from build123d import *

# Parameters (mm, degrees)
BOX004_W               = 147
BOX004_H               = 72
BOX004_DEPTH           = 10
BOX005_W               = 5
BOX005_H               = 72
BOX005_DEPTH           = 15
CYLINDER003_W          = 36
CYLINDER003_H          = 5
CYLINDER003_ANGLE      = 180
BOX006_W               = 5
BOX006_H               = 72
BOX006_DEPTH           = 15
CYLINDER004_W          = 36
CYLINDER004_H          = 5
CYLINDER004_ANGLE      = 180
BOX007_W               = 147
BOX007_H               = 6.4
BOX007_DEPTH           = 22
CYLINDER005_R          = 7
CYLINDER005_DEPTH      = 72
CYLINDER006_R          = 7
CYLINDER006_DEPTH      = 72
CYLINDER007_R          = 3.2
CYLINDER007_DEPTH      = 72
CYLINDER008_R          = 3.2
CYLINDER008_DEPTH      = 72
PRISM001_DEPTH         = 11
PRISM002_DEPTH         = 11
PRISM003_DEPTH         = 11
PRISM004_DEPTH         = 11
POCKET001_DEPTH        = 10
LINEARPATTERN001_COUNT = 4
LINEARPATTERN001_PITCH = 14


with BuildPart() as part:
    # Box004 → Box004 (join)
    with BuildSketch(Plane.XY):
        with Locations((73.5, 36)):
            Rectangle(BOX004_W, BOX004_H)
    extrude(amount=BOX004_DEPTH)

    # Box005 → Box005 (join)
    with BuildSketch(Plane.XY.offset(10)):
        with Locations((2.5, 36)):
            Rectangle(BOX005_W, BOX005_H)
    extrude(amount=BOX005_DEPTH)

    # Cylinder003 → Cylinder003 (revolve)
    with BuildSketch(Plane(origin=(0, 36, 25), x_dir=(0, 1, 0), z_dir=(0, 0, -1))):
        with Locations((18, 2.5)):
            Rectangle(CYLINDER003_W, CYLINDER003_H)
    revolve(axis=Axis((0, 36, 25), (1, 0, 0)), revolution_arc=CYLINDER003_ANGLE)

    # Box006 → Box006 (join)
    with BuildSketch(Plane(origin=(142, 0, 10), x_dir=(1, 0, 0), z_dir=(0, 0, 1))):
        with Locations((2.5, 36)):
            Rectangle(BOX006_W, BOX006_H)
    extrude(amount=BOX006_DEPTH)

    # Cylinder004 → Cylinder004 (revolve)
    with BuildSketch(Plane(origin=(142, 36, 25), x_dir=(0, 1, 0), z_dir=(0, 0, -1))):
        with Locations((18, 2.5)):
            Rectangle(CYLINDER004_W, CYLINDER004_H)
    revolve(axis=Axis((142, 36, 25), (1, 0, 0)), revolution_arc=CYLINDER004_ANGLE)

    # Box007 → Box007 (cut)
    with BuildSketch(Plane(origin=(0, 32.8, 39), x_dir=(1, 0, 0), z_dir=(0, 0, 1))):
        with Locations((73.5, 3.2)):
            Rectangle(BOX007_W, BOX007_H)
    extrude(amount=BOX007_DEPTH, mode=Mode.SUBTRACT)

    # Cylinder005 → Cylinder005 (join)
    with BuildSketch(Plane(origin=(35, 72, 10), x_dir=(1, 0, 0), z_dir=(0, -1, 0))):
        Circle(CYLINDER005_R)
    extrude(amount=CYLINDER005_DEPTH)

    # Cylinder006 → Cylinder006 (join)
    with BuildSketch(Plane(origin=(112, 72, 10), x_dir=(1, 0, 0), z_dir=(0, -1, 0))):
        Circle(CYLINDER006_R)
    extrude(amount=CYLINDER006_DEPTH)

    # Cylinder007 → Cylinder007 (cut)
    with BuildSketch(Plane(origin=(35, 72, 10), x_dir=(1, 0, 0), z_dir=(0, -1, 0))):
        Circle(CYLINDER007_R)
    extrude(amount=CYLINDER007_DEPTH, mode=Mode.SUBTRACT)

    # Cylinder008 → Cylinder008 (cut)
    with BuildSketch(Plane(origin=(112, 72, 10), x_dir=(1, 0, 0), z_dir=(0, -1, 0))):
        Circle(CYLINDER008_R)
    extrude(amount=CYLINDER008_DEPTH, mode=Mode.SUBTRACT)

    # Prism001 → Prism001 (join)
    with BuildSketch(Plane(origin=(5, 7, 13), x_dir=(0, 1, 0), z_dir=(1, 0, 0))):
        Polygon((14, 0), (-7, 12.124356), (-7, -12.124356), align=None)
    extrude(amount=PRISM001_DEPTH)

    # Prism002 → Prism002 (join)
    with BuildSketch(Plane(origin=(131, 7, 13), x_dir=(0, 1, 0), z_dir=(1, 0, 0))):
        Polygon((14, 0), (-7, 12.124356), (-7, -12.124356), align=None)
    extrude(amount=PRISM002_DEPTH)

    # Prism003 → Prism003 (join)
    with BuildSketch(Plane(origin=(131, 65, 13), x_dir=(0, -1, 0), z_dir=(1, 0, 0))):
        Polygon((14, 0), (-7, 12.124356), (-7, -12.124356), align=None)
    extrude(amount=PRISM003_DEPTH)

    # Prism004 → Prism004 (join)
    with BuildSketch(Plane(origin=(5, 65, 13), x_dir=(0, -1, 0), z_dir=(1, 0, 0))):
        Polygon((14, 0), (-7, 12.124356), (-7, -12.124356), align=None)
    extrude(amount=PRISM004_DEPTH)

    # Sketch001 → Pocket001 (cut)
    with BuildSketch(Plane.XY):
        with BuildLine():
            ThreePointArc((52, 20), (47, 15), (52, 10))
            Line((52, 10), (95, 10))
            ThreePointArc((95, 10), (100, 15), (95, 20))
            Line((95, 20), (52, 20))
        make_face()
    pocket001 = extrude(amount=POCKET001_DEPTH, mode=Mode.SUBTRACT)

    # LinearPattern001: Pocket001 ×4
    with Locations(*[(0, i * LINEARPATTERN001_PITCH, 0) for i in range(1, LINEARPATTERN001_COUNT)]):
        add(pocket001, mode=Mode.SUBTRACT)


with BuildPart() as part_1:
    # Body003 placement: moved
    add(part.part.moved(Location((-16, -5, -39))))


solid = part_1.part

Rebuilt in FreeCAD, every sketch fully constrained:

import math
import FreeCAD as App
import Part
import Sketcher

V = App.Vector
Q = App.Units.Quantity

doc = App.newDocument("Part")
body = doc.addObject("PartDesign::Body", "Body")

sketch1 = body.newObject("Sketcher::SketchObject", "Sketch")
sketch1.AttachmentSupport = (doc.getObject("XY_Plane"), [""])
sketch1.MapMode = "FlatFace"
sketch1.addGeometry([
    Part.LineSegment(V(0, 72, 0), V(0, 0, 0)),
    Part.LineSegment(V(0, 0, 0), V(147, 0, 0)),
    Part.LineSegment(V(147, 0, 0), V(147, 72, 0)),
    Part.LineSegment(V(147, 72, 0), V(0, 72, 0)),
], False)
sketch1.addConstraint([
    Sketcher.Constraint("Coincident", 0, 2, 1, 1),
    Sketcher.Constraint("Coincident", 1, 2, 2, 1),
    Sketcher.Constraint("Coincident", 2, 2, 3, 1),
    Sketcher.Constraint("Coincident", 3, 2, 0, 1),
    Sketcher.Constraint("Vertical", 0),
    Sketcher.Constraint("Horizontal", 1),
    Sketcher.Constraint("Vertical", 2),
    Sketcher.Constraint("Horizontal", 3),
    Sketcher.Constraint("Coincident", 0, 2, -1, 1),
    Sketcher.Constraint("DistanceX", 1, 1, 1, 2, Q("147 mm")),
    Sketcher.Constraint("DistanceY", 0, 2, 0, 1, Q("72 mm")),
])
pad1 = body.newObject("PartDesign::Pad", "Pad")
pad1.Profile = sketch1
pad1.Length = 10

sketch2 = body.newObject("Sketcher::SketchObject", "Sketch001")
sketch2.AttachmentSupport = (doc.getObject("XY_Plane"), [""])
sketch2.MapMode = "FlatFace"
sketch2.AttachmentOffset = App.Placement(V(0, 0, 10), App.Rotation())
sketch2.addGeometry([
    Part.LineSegment(V(0, 72, 0), V(0, 0, 0)),
    Part.LineSegment(V(0, 0, 0), V(5, 0, 0)),
    Part.LineSegment(V(5, 0, 0), V(5, 72, 0)),
    Part.LineSegment(V(5, 72, 0), V(0, 72, 0)),
], False)
sketch2.addConstraint([
    Sketcher.Constraint("Coincident", 0, 2, 1, 1),
    Sketcher.Constraint("Coincident", 1, 2, 2, 1),
    Sketcher.Constraint("Coincident", 2, 2, 3, 1),
    Sketcher.Constraint("Coincident", 3, 2, 0, 1),
    Sketcher.Constraint("Vertical", 0),
    Sketcher.Constraint("Horizontal", 1),
    Sketcher.Constraint("Vertical", 2),
    Sketcher.Constraint("Horizontal", 3),
    Sketcher.Constraint("Coincident", 0, 2, -1, 1),
    Sketcher.Constraint("DistanceX", 1, 1, 1, 2, Q("5 mm")),
    Sketcher.Constraint("DistanceY", 0, 2, 0, 1, Q("72 mm")),
])
pad2 = body.newObject("PartDesign::Pad", "Pad001")
pad2.Profile = sketch2
pad2.Length = 15

sketch3 = body.newObject("Sketcher::SketchObject", "Sketch002")
sketch3.AttachmentSupport = (doc.getObject("XY_Plane"), [""])
sketch3.MapMode = "FlatFace"
sketch3.AttachmentOffset = App.Placement(V(0, 0, 25), App.Rotation())
sketch3.addGeometry([
    Part.LineSegment(V(5, 36, 0), V(0, 36, 0)),
    Part.LineSegment(V(0, 36, 0), V(0, 72, 0)),
    Part.LineSegment(V(0, 72, 0), V(5, 72, 0)),
    Part.LineSegment(V(5, 72, 0), V(5, 36, 0)),
], False)
sketch3.addGeometry(Part.LineSegment(V(0, 36, 0), V(5, 36, 0)), True)
sketch3.addConstraint([
    Sketcher.Constraint("Coincident", 0, 2, 1, 1),
    Sketcher.Constraint("Coincident", 1, 2, 2, 1),
    Sketcher.Constraint("Coincident", 2, 2, 3, 1),
    Sketcher.Constraint("Coincident", 3, 2, 0, 1),
    Sketcher.Constraint("Horizontal", 0),
    Sketcher.Constraint("Vertical", 1),
    Sketcher.Constraint("Horizontal", 2),
    Sketcher.Constraint("Vertical", 3),
    Sketcher.Constraint("Horizontal", 4),
    Sketcher.Constraint("Coincident", 4, 1, 0, 2),
    Sketcher.Constraint("PointOnObject", 0, 2, -2),
    Sketcher.Constraint("Vertical", 2, 2, 4, 2),
    Sketcher.Constraint("DistanceX", 0, 2, 0, 1, Q("5 mm")),
    Sketcher.Constraint("DistanceY", 1, 1, 1, 2, Q("36 mm")),
    Sketcher.Constraint("DistanceY", -1, 1, 0, 2, Q("36 mm")),
])
revolution = body.newObject("PartDesign::Revolution", "Revolution")
revolution.Profile = sketch3
revolution.ReferenceAxis = (sketch3, ["Axis0"])
revolution.Angle = 180

sketch4 = body.newObject("Sketcher::SketchObject", "Sketch003")
sketch4.AttachmentSupport = (doc.getObject("XY_Plane"), [""])
sketch4.MapMode = "FlatFace"
sketch4.AttachmentOffset = App.Placement(V(0, 0, 10), App.Rotation())
sketch4.addGeometry([
    Part.LineSegment(V(142, 72, 0), V(142, 0, 0)),
    Part.LineSegment(V(142, 0, 0), V(147, 0, 0)),
    Part.LineSegment(V(147, 0, 0), V(147, 72, 0)),
    Part.LineSegment(V(147, 72, 0), V(142, 72, 0)),
], False)
sketch4.addConstraint([
    Sketcher.Constraint("Coincident", 0, 2, 1, 1),
    Sketcher.Constraint("Coincident", 1, 2, 2, 1),
    Sketcher.Constraint("Coincident", 2, 2, 3, 1),
    Sketcher.Constraint("Coincident", 3, 2, 0, 1),
    Sketcher.Constraint("Vertical", 0),
    Sketcher.Constraint("Horizontal", 1),
    Sketcher.Constraint("Vertical", 2),
    Sketcher.Constraint("Horizontal", 3),
    Sketcher.Constraint("PointOnObject", 0, 2, -1),
    Sketcher.Constraint("DistanceX", 1, 1, 1, 2, Q("5 mm")),
    Sketcher.Constraint("DistanceY", 0, 2, 0, 1, Q("72 mm")),
    Sketcher.Constraint("DistanceX", -1, 1, 0, 2, Q("142 mm")),
])
pad3 = body.newObject("PartDesign::Pad", "Pad002")
pad3.Profile = sketch4
pad3.Length = 15

sketch5 = body.newObject("Sketcher::SketchObject", "Sketch004")
sketch5.AttachmentSupport = (doc.getObject("XY_Plane"), [""])
sketch5.MapMode = "FlatFace"
sketch5.AttachmentOffset = App.Placement(V(0, 0, 25), App.Rotation())
sketch5.addGeometry([
    Part.LineSegment(V(147, 36, 0), V(142, 36, 0)),
    Part.LineSegment(V(142, 36, 0), V(142, 72, 0)),
    Part.LineSegment(V(142, 72, 0), V(147, 72, 0)),
    Part.LineSegment(V(147, 72, 0), V(147, 36, 0)),
], False)
sketch5.addGeometry(Part.LineSegment(V(142, 36, 0), V(147, 36, 0)), True)
sketch5.addConstraint([
    Sketcher.Constraint("Coincident", 0, 2, 1, 1),
    Sketcher.Constraint("Coincident", 1, 2, 2, 1),
    Sketcher.Constraint("Coincident", 2, 2, 3, 1),
    Sketcher.Constraint("Coincident", 3, 2, 0, 1),
    Sketcher.Constraint("Horizontal", 0),
    Sketcher.Constraint("Vertical", 1),
    Sketcher.Constraint("Horizontal", 2),
    Sketcher.Constraint("Vertical", 3),
    Sketcher.Constraint("Horizontal", 4),
    Sketcher.Constraint("Coincident", 4, 1, 0, 2),
    Sketcher.Constraint("Vertical", 2, 2, 4, 2),
    Sketcher.Constraint("DistanceX", 0, 2, 0, 1, Q("5 mm")),
    Sketcher.Constraint("DistanceY", 1, 1, 1, 2, Q("36 mm")),
    Sketcher.Constraint("DistanceX", -1, 1, 0, 2, Q("142 mm")),
    Sketcher.Constraint("DistanceY", -1, 1, 0, 2, Q("36 mm")),
])
revolution2 = body.newObject("PartDesign::Revolution", "Revolution001")
revolution2.Profile = sketch5
revolution2.ReferenceAxis = (sketch5, ["Axis0"])
revolution2.Angle = 180

sketch6 = body.newObject("Sketcher::SketchObject", "Sketch005")
sketch6.AttachmentSupport = (doc.getObject("XY_Plane"), [""])
sketch6.MapMode = "FlatFace"
sketch6.AttachmentOffset = App.Placement(V(0, 0, 39), App.Rotation())
sketch6.addGeometry([
    Part.LineSegment(V(0, 39, 0), V(0, 33, 0)),
    Part.LineSegment(V(0, 33, 0), V(147, 33, 0)),
    Part.LineSegment(V(147, 33, 0), V(147, 39, 0)),
    Part.LineSegment(V(147, 39, 0), V(0, 39, 0)),
], False)
sketch6.addConstraint([
    Sketcher.Constraint("Coincident", 0, 2, 1, 1),
    Sketcher.Constraint("Coincident", 1, 2, 2, 1),
    Sketcher.Constraint("Coincident", 2, 2, 3, 1),
    Sketcher.Constraint("Coincident", 3, 2, 0, 1),
    Sketcher.Constraint("Vertical", 0),
    Sketcher.Constraint("Horizontal", 1),
    Sketcher.Constraint("Vertical", 2),
    Sketcher.Constraint("Horizontal", 3),
    Sketcher.Constraint("PointOnObject", 0, 2, -2),
    Sketcher.Constraint("DistanceX", 1, 1, 1, 2, Q("147 mm")),
    Sketcher.Constraint("DistanceY", 0, 2, 0, 1, Q("6.4 mm")),
    Sketcher.Constraint("DistanceY", -1, 1, 0, 2, Q("32.8 mm")),
])
pocket1 = body.newObject("PartDesign::Pocket", "Pocket")
pocket1.Profile = sketch6
pocket1.Length = 22
pocket1.Reversed = True

sketch7 = body.newObject("Sketcher::SketchObject", "Sketch006")
sketch7.AttachmentSupport = (doc.getObject("XZ_Plane"), [""])
sketch7.MapMode = "FlatFace"
sketch7.AttachmentOffset = App.Placement(V(0, 0, -72), App.Rotation())
sketch7.addGeometry(Part.Circle(V(35, 10, 0), V(0, 0, 1), 7), False)
sketch7.addConstraint([
    Sketcher.Constraint("Diameter", 0, Q("14 mm")),
    Sketcher.Constraint("DistanceX", -1, 1, 0, 3, Q("35 mm")),
    Sketcher.Constraint("DistanceY", -1, 1, 0, 3, Q("10 mm")),
])
pad4 = body.newObject("PartDesign::Pad", "Pad003")
pad4.Profile = sketch7
pad4.Length = 72

sketch8 = body.newObject("Sketcher::SketchObject", "Sketch007")
sketch8.AttachmentSupport = (doc.getObject("XZ_Plane"), [""])
sketch8.MapMode = "FlatFace"
sketch8.AttachmentOffset = App.Placement(V(0, 0, -72), App.Rotation())
sketch8.addGeometry(Part.Circle(V(112, 10, 0), V(0, 0, 1), 7), False)
sketch8.addConstraint([
    Sketcher.Constraint("Diameter", 0, Q("14 mm")),
    Sketcher.Constraint("DistanceX", -1, 1, 0, 3, Q("112 mm")),
    Sketcher.Constraint("DistanceY", -1, 1, 0, 3, Q("10 mm")),
])
pad5 = body.newObject("PartDesign::Pad", "Pad004")
pad5.Profile = sketch8
pad5.Length = 72

sketch9 = body.newObject("Sketcher::SketchObject", "Sketch008")
sketch9.AttachmentSupport = (doc.getObject("XZ_Plane"), [""])
sketch9.MapMode = "FlatFace"
sketch9.AttachmentOffset = App.Placement(V(0, 0, -72), App.Rotation())
sketch9.addGeometry(Part.Circle(V(35, 10, 0), V(0, 0, 1), 3.2), False)
sketch9.addConstraint([
    Sketcher.Constraint("Diameter", 0, Q("6.4 mm")),
    Sketcher.Constraint("DistanceX", -1, 1, 0, 3, Q("35 mm")),
    Sketcher.Constraint("DistanceY", -1, 1, 0, 3, Q("10 mm")),
])
pocket2 = body.newObject("PartDesign::Pocket", "Pocket001")
pocket2.Profile = sketch9
pocket2.Length = 72
pocket2.Reversed = True

sketch10 = body.newObject("Sketcher::SketchObject", "Sketch009")
sketch10.AttachmentSupport = (doc.getObject("XZ_Plane"), [""])
sketch10.MapMode = "FlatFace"
sketch10.AttachmentOffset = App.Placement(V(0, 0, -72), App.Rotation())
sketch10.addGeometry(Part.Circle(V(112, 10, 0), V(0, 0, 1), 3.2), False)
sketch10.addConstraint([
    Sketcher.Constraint("Diameter", 0, Q("6.4 mm")),
    Sketcher.Constraint("DistanceX", -1, 1, 0, 3, Q("112 mm")),
    Sketcher.Constraint("DistanceY", -1, 1, 0, 3, Q("10 mm")),
])
pocket3 = body.newObject("PartDesign::Pocket", "Pocket002")
pocket3.Profile = sketch10
pocket3.Length = 72
pocket3.Reversed = True

sketch11 = body.newObject("Sketcher::SketchObject", "Sketch010")
sketch11.AttachmentSupport = (doc.getObject("YZ_Plane"), [""])
sketch11.MapMode = "FlatFace"
sketch11.AttachmentOffset = App.Placement(V(0, 0, 5), App.Rotation())
sketch11.addGeometry([
    Part.LineSegment(V(21, 13, 0), V(0, 25, 0)),
    Part.LineSegment(V(0, 25, 0), V(0, 1, 0)),
    Part.LineSegment(V(0, 1, 0), V(21, 13, 0)),
], False)
sketch11.addConstraint([
    Sketcher.Constraint("Coincident", 0, 2, 1, 1),
    Sketcher.Constraint("Coincident", 1, 2, 2, 1),
    Sketcher.Constraint("Coincident", 2, 2, 0, 1),
    Sketcher.Constraint("Vertical", 1),
    Sketcher.Constraint("PointOnObject", 0, 2, -2),
    Sketcher.Constraint("Equal", 0, 2),
    Sketcher.Constraint("Angle", 0, Q("149.999999 deg")),
    Sketcher.Constraint("DistanceX", -1, 1, 2, 2, Q("21 mm")),
    Sketcher.Constraint("DistanceY", -1, 1, 2, 2, Q("13 mm")),
])
pad6 = body.newObject("PartDesign::Pad", "Pad005")
pad6.Profile = sketch11
pad6.Length = 11

sketch12 = body.newObject("Sketcher::SketchObject", "Sketch011")
sketch12.AttachmentSupport = (doc.getObject("YZ_Plane"), [""])
sketch12.MapMode = "FlatFace"
sketch12.AttachmentOffset = App.Placement(V(0, 0, 131), App.Rotation())
sketch12.addGeometry([
    Part.LineSegment(V(21, 13, 0), V(0, 25, 0)),
    Part.LineSegment(V(0, 25, 0), V(0, 1, 0)),
    Part.LineSegment(V(0, 1, 0), V(21, 13, 0)),
], False)
sketch12.addConstraint([
    Sketcher.Constraint("Coincident", 0, 2, 1, 1),
    Sketcher.Constraint("Coincident", 1, 2, 2, 1),
    Sketcher.Constraint("Coincident", 2, 2, 0, 1),
    Sketcher.Constraint("Vertical", 1),
    Sketcher.Constraint("PointOnObject", 0, 2, -2),
    Sketcher.Constraint("Equal", 0, 2),
    Sketcher.Constraint("Angle", 0, Q("149.999999 deg")),
    Sketcher.Constraint("DistanceX", -1, 1, 2, 2, Q("21 mm")),
    Sketcher.Constraint("DistanceY", -1, 1, 2, 2, Q("13 mm")),
])
pad7 = body.newObject("PartDesign::Pad", "Pad006")
pad7.Profile = sketch12
pad7.Length = 11

sketch13 = body.newObject("Sketcher::SketchObject", "Sketch012")
sketch13.AttachmentSupport = (doc.getObject("YZ_Plane"), [""])
sketch13.MapMode = "FlatFace"
sketch13.AttachmentOffset = App.Placement(V(0, 0, 131), App.Rotation())
sketch13.addGeometry([
    Part.LineSegment(V(51, 13, 0), V(72, 1, 0)),
    Part.LineSegment(V(72, 1, 0), V(72, 25, 0)),
    Part.LineSegment(V(72, 25, 0), V(51, 13, 0)),
], False)
sketch13.addConstraint([
    Sketcher.Constraint("Coincident", 0, 2, 1, 1),
    Sketcher.Constraint("Coincident", 1, 2, 2, 1),
    Sketcher.Constraint("Coincident", 2, 2, 0, 1),
    Sketcher.Constraint("Vertical", 1),
    Sketcher.Constraint("Equal", 0, 2),
    Sketcher.Constraint("Angle", 0, Q("-30.000001 deg")),
    Sketcher.Constraint("DistanceX", -1, 1, 0, 2, Q("72 mm")),
    Sketcher.Constraint("DistanceX", -1, 1, 2, 2, Q("51 mm")),
    Sketcher.Constraint("DistanceY", -1, 1, 2, 2, Q("13 mm")),
])
pad8 = body.newObject("PartDesign::Pad", "Pad007")
pad8.Profile = sketch13
pad8.Length = 11

sketch14 = body.newObject("Sketcher::SketchObject", "Sketch013")
sketch14.AttachmentSupport = (doc.getObject("YZ_Plane"), [""])
sketch14.MapMode = "FlatFace"
sketch14.AttachmentOffset = App.Placement(V(0, 0, 5), App.Rotation())
sketch14.addGeometry([
    Part.LineSegment(V(51, 13, 0), V(72, 1, 0)),
    Part.LineSegment(V(72, 1, 0), V(72, 25, 0)),
    Part.LineSegment(V(72, 25, 0), V(51, 13, 0)),
], False)
sketch14.addConstraint([
    Sketcher.Constraint("Coincident", 0, 2, 1, 1),
    Sketcher.Constraint("Coincident", 1, 2, 2, 1),
    Sketcher.Constraint("Coincident", 2, 2, 0, 1),
    Sketcher.Constraint("Vertical", 1),
    Sketcher.Constraint("Equal", 0, 2),
    Sketcher.Constraint("Angle", 0, Q("-30.000001 deg")),
    Sketcher.Constraint("DistanceX", -1, 1, 0, 2, Q("72 mm")),
    Sketcher.Constraint("DistanceX", -1, 1, 2, 2, Q("51 mm")),
    Sketcher.Constraint("DistanceY", -1, 1, 2, 2, Q("13 mm")),
])
pad9 = body.newObject("PartDesign::Pad", "Pad008")
pad9.Profile = sketch14
pad9.Length = 11

sketch15 = body.newObject("Sketcher::SketchObject", "Sketch014")
sketch15.AttachmentSupport = (doc.getObject("XY_Plane"), [""])
sketch15.MapMode = "FlatFace"
sketch15.addGeometry([
    Part.ArcOfCircle(Part.Circle(V(52, 15, 0), V(0, 0, 1), 5), math.radians(90), math.radians(270)),
    Part.LineSegment(V(52, 10, 0), V(95, 10, 0)),
    Part.ArcOfCircle(Part.Circle(V(95, 15, 0), V(0, 0, 1), 5), math.radians(-90), math.radians(90)),
    Part.LineSegment(V(95, 20, 0), V(52, 20, 0)),
], False)
sketch15.addConstraint([
    Sketcher.Constraint("Tangent", 0, 2, 1, 1),
    Sketcher.Constraint("Tangent", 1, 2, 2, 1),
    Sketcher.Constraint("Tangent", 2, 2, 3, 1),
    Sketcher.Constraint("Tangent", 3, 2, 0, 1),
    Sketcher.Constraint("Horizontal", 1),
    Sketcher.Constraint("Horizontal", 3),
    Sketcher.Constraint("Radius", 0, Q("5 mm")),
    Sketcher.Constraint("DistanceX", 1, 1, 1, 2, Q("43 mm")),
    Sketcher.Constraint("DistanceX", -1, 1, 0, 3, Q("52 mm")),
    Sketcher.Constraint("DistanceY", -1, 1, 0, 3, Q("15 mm")),
])
pocket4 = body.newObject("PartDesign::Pocket", "Pocket003")
pocket4.Profile = sketch15
pocket4.Length = 10
pocket4.Reversed = True
doc.recompute()

linearpattern = body.newObject("PartDesign::LinearPattern", "LinearPattern")
linearpattern.Originals = [pocket4]
linearpattern.Direction = (doc.getObject("Y_Axis"), [""])
linearpattern.Mode = "offset"
linearpattern.Offset = 14
linearpattern.Occurrences = 4
body.Tip = linearpattern
body2 = doc.addObject("PartDesign::Body", "Body001")
doc.recompute()

body.Placement = App.Placement(V(-16, -5, -39), App.Rotation(V(0, 0, 1), 0))
boolean = body2.newObject("PartDesign::Boolean", "Boolean")
boolean.Type = "Fuse"
boolean.addObjects([body])

doc.recompute()
